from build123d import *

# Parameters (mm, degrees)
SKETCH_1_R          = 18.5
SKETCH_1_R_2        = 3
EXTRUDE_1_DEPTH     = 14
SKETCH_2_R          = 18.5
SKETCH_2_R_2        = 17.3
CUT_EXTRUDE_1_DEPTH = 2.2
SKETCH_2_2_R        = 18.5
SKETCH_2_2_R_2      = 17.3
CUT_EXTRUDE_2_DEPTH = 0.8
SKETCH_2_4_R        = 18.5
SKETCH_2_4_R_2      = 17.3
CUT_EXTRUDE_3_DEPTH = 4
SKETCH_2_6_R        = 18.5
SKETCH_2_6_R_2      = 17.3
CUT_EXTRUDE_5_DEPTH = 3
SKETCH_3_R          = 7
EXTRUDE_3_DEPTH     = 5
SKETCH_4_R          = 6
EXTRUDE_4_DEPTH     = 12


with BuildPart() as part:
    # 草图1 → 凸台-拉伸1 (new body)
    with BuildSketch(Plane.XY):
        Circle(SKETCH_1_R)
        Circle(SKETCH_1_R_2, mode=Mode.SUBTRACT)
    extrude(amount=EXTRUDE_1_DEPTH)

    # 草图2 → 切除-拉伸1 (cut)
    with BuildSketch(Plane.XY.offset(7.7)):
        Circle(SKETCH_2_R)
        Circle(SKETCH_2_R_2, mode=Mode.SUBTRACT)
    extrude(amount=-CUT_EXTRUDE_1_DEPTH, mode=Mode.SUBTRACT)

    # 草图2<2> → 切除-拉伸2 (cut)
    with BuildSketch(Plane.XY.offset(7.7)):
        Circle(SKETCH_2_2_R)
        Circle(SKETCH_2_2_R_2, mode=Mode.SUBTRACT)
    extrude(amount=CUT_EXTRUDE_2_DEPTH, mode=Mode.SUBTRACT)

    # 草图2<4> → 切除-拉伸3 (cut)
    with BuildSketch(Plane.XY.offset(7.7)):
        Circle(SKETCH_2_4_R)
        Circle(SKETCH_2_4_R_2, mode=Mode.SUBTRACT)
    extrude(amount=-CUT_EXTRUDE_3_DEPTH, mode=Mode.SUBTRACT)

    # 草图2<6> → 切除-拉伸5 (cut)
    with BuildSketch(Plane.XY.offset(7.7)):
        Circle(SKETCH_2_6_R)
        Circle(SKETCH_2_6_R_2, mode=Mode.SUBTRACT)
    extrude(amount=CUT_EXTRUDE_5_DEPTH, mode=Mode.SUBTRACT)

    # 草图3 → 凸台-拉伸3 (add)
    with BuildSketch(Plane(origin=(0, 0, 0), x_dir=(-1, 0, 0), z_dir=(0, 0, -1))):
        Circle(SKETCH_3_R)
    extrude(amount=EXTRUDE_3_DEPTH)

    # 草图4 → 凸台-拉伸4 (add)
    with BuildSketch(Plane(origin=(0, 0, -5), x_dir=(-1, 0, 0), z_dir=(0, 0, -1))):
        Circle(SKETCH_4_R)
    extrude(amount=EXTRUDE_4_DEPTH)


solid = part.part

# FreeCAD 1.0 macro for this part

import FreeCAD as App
import Part
import Sketcher

V = App.Vector

doc = App.newDocument("Part")
body = doc.addObject("PartDesign::Body", "Body")

# Sketch on XY plane
sketch1 = body.newObject("Sketcher::SketchObject", "Sketch")
sketch1.AttachmentSupport = (doc.getObject("XY_Plane"), [""])
sketch1.MapMode = "FlatFace"
sketch1.addGeometry([
    Part.Circle(V(0, 0, 0), V(0, 0, 1), 18.5),
    Part.Circle(V(0, 0, 0), V(0, 0, 1), 3),
], False)
sketch1.addConstraint([
    Sketcher.Constraint("Coincident", 0, 3, -1, 1),
    Sketcher.Constraint("Coincident", 1, 3, -1, 1),
    Sketcher.Constraint("Diameter", 0, 37.0),
    Sketcher.Constraint("Diameter", 1, 6.0),
])
pad1 = body.newObject("PartDesign::Pad", "Pad")
pad1.Profile = sketch1
pad1.Length = 14

# Sketch on XY plane
sketch2 = body.newObject("Sketcher::SketchObject", "Sketch001")
sketch2.AttachmentSupport = (doc.getObject("XY_Plane"), [""])
sketch2.MapMode = "FlatFace"
sketch2.AttachmentOffset = App.Placement(V(0, 0, 7.7), App.Rotation())
sketch2.addGeometry([
    Part.Circle(V(0, 0, 0), V(0, 0, 1), 18.5),
    Part.Circle(V(0, 0, 0), V(0, 0, 1), 17.3),
], False)
sketch2.addConstraint([
    Sketcher.Constraint("Coincident", 0, 3, -1, 1),
    Sketcher.Constraint("Coincident", 1, 3, -1, 1),
    Sketcher.Constraint("Diameter", 0, 37.0),
    Sketcher.Constraint("Diameter", 1, 34.6),
])
pocket1 = body.newObject("PartDesign::Pocket", "Pocket")
pocket1.Profile = sketch2
pocket1.Length = 2.2

# Sketch on XY plane
sketch3 = body.newObject("Sketcher::SketchObject", "Sketch002")
sketch3.AttachmentSupport = (doc.getObject("XY_Plane"), [""])
sketch3.MapMode = "FlatFace"
sketch3.AttachmentOffset = App.Placement(V(0, 0, 7.7), App.Rotation())
sketch3.addGeometry([
    Part.Circle(V(0, 0, 0), V(0, 0, 1), 18.5),
    Part.Circle(V(0, 0, 0), V(0, 0, 1), 17.3),
], False)
sketch3.addConstraint([
    Sketcher.Constraint("Coincident", 0, 3, -1, 1),
    Sketcher.Constraint("Coincident", 1, 3, -1, 1),
    Sketcher.Constraint("Diameter", 0, 37.0),
    Sketcher.Constraint("Diameter", 1, 34.6),
])
pocket2 = body.newObject("PartDesign::Pocket", "Pocket001")
pocket2.Profile = sketch3
pocket2.Length = 0.8
pocket2.Reversed = True

# Sketch on XY plane
sketch4 = body.newObject("Sketcher::SketchObject", "Sketch003")
sketch4.AttachmentSupport = (doc.getObject("XY_Plane"), [""])
sketch4.MapMode = "FlatFace"
sketch4.AttachmentOffset = App.Placement(V(0, 0, 7.7), App.Rotation())
sketch4.addGeometry([
    Part.Circle(V(0, 0, 0), V(0, 0, 1), 18.5),
    Part.Circle(V(0, 0, 0), V(0, 0, 1), 17.3),
], False)
sketch4.addConstraint([
    Sketcher.Constraint("Coincident", 0, 3, -1, 1),
    Sketcher.Constraint("Coincident", 1, 3, -1, 1),
    Sketcher.Constraint("Diameter", 0, 37.0),
    Sketcher.Constraint("Diameter", 1, 34.6),
])
pocket3 = body.newObject("PartDesign::Pocket", "Pocket002")
pocket3.Profile = sketch4
pocket3.Length = 4

# Sketch on XY plane
sketch5 = body.newObject("Sketcher::SketchObject", "Sketch004")
sketch5.AttachmentSupport = (doc.getObject("XY_Plane"), [""])
sketch5.MapMode = "FlatFace"
sketch5.AttachmentOffset = App.Placement(V(0, 0, 7.7), App.Rotation())
sketch5.addGeometry([
    Part.Circle(V(0, 0, 0), V(0, 0, 1), 18.5),
    Part.Circle(V(0, 0, 0), V(0, 0, 1), 17.3),
], False)
sketch5.addConstraint([
    Sketcher.Constraint("Coincident", 0, 3, -1, 1),
    Sketcher.Constraint("Coincident", 1, 3, -1, 1),
    Sketcher.Constraint("Diameter", 0, 37.0),
    Sketcher.Constraint("Diameter", 1, 34.6),
])
pocket4 = body.newObject("PartDesign::Pocket", "Pocket003")
pocket4.Profile = sketch5
pocket4.Length = 3
pocket4.Reversed = True

# Sketch on XY plane
sketch6 = body.newObject("Sketcher::SketchObject", "Sketch005")
sketch6.AttachmentSupport = (doc.getObject("XY_Plane"), [""])
sketch6.MapMode = "FlatFace"
sketch6.addGeometry(Part.Circle(V(0, 0, 0), V(0, 0, 1), 7), False)
sketch6.addConstraint([
    Sketcher.Constraint("Coincident", 0, 3, -1, 1),
    Sketcher.Constraint("Diameter", 0, 14.0),
])
pad2 = body.newObject("PartDesign::Pad", "Pad001")
pad2.Profile = sketch6
pad2.Length = 5
pad2.Reversed = True

# Sketch on XY plane
sketch7 = body.newObject("Sketcher::SketchObject", "Sketch006")
sketch7.AttachmentSupport = (doc.getObject("XY_Plane"), [""])
sketch7.MapMode = "FlatFace"
sketch7.AttachmentOffset = App.Placement(V(0, 0, -5), App.Rotation())
sketch7.addGeometry(Part.Circle(V(0, 0, 0), V(0, 0, 1), 6), False)
sketch7.addConstraint([
    Sketcher.Constraint("Coincident", 0, 3, -1, 1),
    Sketcher.Constraint("Diameter", 0, 12.0),
])
pad3 = body.newObject("PartDesign::Pad", "Pad002")
pad3.Profile = sketch7
pad3.Length = 12
pad3.Reversed = True

doc.recompute()
